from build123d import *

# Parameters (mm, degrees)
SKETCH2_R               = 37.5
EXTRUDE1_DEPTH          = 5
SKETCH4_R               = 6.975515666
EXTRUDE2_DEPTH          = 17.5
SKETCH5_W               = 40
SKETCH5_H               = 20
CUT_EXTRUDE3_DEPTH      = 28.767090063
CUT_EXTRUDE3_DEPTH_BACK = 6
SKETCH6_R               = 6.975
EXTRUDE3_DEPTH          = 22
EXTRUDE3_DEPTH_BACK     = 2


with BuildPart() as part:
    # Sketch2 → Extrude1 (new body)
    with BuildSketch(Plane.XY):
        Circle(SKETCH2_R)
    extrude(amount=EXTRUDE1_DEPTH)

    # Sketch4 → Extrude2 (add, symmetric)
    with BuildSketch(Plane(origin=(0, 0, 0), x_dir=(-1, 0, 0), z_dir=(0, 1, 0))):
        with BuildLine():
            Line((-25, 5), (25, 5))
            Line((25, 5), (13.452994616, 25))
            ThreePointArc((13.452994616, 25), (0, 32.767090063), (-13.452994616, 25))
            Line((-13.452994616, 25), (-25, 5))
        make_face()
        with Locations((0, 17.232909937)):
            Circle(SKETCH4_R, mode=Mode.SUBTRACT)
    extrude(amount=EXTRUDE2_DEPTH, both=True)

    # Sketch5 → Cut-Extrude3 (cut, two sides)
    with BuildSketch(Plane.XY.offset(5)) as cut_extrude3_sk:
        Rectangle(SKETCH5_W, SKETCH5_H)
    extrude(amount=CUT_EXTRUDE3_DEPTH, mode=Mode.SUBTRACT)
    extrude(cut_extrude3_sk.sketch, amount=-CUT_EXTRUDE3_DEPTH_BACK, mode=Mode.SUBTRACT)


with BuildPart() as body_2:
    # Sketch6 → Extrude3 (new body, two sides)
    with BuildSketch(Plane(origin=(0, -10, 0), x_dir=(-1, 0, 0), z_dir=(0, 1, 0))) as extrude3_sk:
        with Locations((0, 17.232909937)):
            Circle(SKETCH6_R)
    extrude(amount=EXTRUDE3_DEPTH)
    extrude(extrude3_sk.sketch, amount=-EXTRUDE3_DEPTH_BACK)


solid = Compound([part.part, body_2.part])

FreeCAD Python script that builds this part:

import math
import FreeCAD as App
import Part
import Sketcher
from FreeCAD import Vector
Q = App.Units.Quantity

doc = App.newDocument("Part")
body = doc.addObject("PartDesign::Body", "Body")

# Sketch on XY plane
sketch1 = body.newObject("Sketcher::SketchObject", "Sketch")
sketch1.AttachmentSupport = (doc.getObject("XY_Plane"), [""])
sketch1.MapMode = "FlatFace"
sketch1.addGeometry(Part.Circle(Vector(0, 0, 0), Vector(0, 0, 1), 38), False)
sketch1.addConstraint(Sketcher.Constraint("Coincident", 0, 3, -1, 1))
sketch1.addConstraint(Sketcher.Constraint("Diameter", 0, 75.0))
pad1 = body.newObject("PartDesign::Pad", "Pad")
pad1.Profile = sketch1
pad1.Length = 5

# Sketch on XZ plane
sketch2 = body.newObject("Sketcher::SketchObject", "Sketch001")
sketch2.AttachmentSupport = (doc.getObject("XZ_Plane"), [""])
sketch2.MapMode = "FlatFace"
sketch2.addGeometry(Part.LineSegment(Vector(25, 5, 0), Vector(-25, 5, 0)), False)
sketch2.addGeometry(Part.LineSegment(Vector(-25, 5, 0), Vector(-13, 25, 0)), False)
sketch2.addGeometry(Part.ArcOfCircle(Part.Circle(Vector(0, 17, 0), Vector(0, 0, 1), 16), math.radians(30), math.radians(150)), False)
sketch2.addGeometry(Part.LineSegment(Vector(13, 25, 0), Vector(25, 5, 0)), False)
sketch2.addGeometry(Part.Circle(Vector(0, 17, 0), Vector(0, 0, 1), 7), False)
sketch2.addConstraint(Sketcher.Constraint("Coincident", 0, 2, 1, 1))
sketch2.addConstraint(Sketcher.Constraint("Tangent", 1, 2, 2, 2))
sketch2.addConstraint(Sketcher.Constraint("Tangent", 2, 1, 3, 1))
sketch2.addConstraint(Sketcher.Constraint("Coincident", 3, 2, 0, 1))
sketch2.addConstraint(Sketcher.Constraint("Horizontal", 0))
sketch2.addConstraint(Sketcher.Constraint("Coincident", 4, 3, 2, 3))
sketch2.addConstraint(Sketcher.Constraint("Symmetric", 1, 2, 2, 1, -2))
sketch2.addConstraint(Sketcher.Constraint("DistanceX", 0, 2, 0, 1, 50.0))
sketch2.addConstraint(Sketcher.Constraint("Angle", 1, Q("60 deg")))
sketch2.addConstraint(Sketcher.Constraint("DistanceY", -1, 1, 0, 2, 5.0))
sketch2.addConstraint(Sketcher.Constraint("DistanceY", -1, 1, 1, 2, 25.0))
sketch2.addConstraint(Sketcher.Constraint("Diameter", 4, 13.951031))
pad2 = body.newObject("PartDesign::Pad", "Pad001")
pad2.Profile = sketch2
pad2.Length = 35
pad2.Midplane = True

# Sketch on XY plane
sketch3 = body.newObject("Sketcher::SketchObject", "Sketch002")
sketch3.AttachmentSupport = (doc.getObject("XY_Plane"), [""])
sketch3.MapMode = "FlatFace"
sketch3.AttachmentOffset = App.Placement(Vector(0, 0, 5), App.Rotation())
sketch3.addGeometry(Part.LineSegment(Vector(-20, 10, 0), Vector(-20, -10, 0)), False)
sketch3.addGeometry(Part.LineSegment(Vector(-20, -10, 0), Vector(20, -10, 0)), False)
sketch3.addGeometry(Part.LineSegment(Vector(20, -10, 0), Vector(20, 10, 0)), False)
sketch3.addGeometry(Part.LineSegment(Vector(20, 10, 0), Vector(-20, 10, 0)), False)
sketch3.addConstraint(Sketcher.Constraint("Coincident", 0, 2, 1, 1))
sketch3.addConstraint(Sketcher.Constraint("Coincident", 1, 2, 2, 1))
sketch3.addConstraint(Sketcher.Constraint("Coincident", 2, 2, 3, 1))
sketch3.addConstraint(Sketcher.Constraint("Coincident", 3, 2, 0, 1))
sketch3.addConstraint(Sketcher.Constraint("Vertical", 0))
sketch3.addConstraint(Sketcher.Constraint("Horizontal", 1))
sketch3.addConstraint(Sketcher.Constraint("Vertical", 2))
sketch3.addConstraint(Sketcher.Constraint("Horizontal", 3))
sketch3.addConstraint(Sketcher.Constraint("Symmetric", 0, 2, 2, 2, -1, 1))
sketch3.addConstraint(Sketcher.Constraint("DistanceX", 1, 1, 1, 2, 40.0))
sketch3.addConstraint(Sketcher.Constraint("DistanceY", 0, 2, 0, 1, 20.0))
pocket1 = body.newObject("PartDesign::Pocket", "Pocket")
pocket1.Profile = sketch3
pocket1.Type = "ThroughAll"
pocket1.Midplane = True
body2 = doc.addObject("PartDesign::Body", "Body001")

# Sketch on XZ plane
sketch4 = body2.newObject("Sketcher::SketchObject", "Sketch003")
sketch4.AttachmentSupport = (doc.getObject("XZ_Plane001"), [""])
sketch4.MapMode = "FlatFace"
sketch4.AttachmentOffset = App.Placement(Vector(0, 0, 10), App.Rotation())
sketch4.addGeometry(Part.Circle(Vector(0, 17, 0), Vector(0, 0, 1), 7), False)
sketch4.addConstraint(Sketcher.Constraint("PointOnObject", 0, 3, -2))
sketch4.addConstraint(Sketcher.Constraint("Diameter", 0, 13.95))
sketch4.addConstraint(Sketcher.Constraint("DistanceY", -1, 1, 0, 3, 17.23291))
pad3 = body2.newObject("PartDesign::Pad", "Pad002")
pad3.Profile = sketch4
pad3.Type = "TwoLengths"
pad3.Length = 22
pad3.Length2 = 2
pad3.Reversed = True

doc.recompute()
